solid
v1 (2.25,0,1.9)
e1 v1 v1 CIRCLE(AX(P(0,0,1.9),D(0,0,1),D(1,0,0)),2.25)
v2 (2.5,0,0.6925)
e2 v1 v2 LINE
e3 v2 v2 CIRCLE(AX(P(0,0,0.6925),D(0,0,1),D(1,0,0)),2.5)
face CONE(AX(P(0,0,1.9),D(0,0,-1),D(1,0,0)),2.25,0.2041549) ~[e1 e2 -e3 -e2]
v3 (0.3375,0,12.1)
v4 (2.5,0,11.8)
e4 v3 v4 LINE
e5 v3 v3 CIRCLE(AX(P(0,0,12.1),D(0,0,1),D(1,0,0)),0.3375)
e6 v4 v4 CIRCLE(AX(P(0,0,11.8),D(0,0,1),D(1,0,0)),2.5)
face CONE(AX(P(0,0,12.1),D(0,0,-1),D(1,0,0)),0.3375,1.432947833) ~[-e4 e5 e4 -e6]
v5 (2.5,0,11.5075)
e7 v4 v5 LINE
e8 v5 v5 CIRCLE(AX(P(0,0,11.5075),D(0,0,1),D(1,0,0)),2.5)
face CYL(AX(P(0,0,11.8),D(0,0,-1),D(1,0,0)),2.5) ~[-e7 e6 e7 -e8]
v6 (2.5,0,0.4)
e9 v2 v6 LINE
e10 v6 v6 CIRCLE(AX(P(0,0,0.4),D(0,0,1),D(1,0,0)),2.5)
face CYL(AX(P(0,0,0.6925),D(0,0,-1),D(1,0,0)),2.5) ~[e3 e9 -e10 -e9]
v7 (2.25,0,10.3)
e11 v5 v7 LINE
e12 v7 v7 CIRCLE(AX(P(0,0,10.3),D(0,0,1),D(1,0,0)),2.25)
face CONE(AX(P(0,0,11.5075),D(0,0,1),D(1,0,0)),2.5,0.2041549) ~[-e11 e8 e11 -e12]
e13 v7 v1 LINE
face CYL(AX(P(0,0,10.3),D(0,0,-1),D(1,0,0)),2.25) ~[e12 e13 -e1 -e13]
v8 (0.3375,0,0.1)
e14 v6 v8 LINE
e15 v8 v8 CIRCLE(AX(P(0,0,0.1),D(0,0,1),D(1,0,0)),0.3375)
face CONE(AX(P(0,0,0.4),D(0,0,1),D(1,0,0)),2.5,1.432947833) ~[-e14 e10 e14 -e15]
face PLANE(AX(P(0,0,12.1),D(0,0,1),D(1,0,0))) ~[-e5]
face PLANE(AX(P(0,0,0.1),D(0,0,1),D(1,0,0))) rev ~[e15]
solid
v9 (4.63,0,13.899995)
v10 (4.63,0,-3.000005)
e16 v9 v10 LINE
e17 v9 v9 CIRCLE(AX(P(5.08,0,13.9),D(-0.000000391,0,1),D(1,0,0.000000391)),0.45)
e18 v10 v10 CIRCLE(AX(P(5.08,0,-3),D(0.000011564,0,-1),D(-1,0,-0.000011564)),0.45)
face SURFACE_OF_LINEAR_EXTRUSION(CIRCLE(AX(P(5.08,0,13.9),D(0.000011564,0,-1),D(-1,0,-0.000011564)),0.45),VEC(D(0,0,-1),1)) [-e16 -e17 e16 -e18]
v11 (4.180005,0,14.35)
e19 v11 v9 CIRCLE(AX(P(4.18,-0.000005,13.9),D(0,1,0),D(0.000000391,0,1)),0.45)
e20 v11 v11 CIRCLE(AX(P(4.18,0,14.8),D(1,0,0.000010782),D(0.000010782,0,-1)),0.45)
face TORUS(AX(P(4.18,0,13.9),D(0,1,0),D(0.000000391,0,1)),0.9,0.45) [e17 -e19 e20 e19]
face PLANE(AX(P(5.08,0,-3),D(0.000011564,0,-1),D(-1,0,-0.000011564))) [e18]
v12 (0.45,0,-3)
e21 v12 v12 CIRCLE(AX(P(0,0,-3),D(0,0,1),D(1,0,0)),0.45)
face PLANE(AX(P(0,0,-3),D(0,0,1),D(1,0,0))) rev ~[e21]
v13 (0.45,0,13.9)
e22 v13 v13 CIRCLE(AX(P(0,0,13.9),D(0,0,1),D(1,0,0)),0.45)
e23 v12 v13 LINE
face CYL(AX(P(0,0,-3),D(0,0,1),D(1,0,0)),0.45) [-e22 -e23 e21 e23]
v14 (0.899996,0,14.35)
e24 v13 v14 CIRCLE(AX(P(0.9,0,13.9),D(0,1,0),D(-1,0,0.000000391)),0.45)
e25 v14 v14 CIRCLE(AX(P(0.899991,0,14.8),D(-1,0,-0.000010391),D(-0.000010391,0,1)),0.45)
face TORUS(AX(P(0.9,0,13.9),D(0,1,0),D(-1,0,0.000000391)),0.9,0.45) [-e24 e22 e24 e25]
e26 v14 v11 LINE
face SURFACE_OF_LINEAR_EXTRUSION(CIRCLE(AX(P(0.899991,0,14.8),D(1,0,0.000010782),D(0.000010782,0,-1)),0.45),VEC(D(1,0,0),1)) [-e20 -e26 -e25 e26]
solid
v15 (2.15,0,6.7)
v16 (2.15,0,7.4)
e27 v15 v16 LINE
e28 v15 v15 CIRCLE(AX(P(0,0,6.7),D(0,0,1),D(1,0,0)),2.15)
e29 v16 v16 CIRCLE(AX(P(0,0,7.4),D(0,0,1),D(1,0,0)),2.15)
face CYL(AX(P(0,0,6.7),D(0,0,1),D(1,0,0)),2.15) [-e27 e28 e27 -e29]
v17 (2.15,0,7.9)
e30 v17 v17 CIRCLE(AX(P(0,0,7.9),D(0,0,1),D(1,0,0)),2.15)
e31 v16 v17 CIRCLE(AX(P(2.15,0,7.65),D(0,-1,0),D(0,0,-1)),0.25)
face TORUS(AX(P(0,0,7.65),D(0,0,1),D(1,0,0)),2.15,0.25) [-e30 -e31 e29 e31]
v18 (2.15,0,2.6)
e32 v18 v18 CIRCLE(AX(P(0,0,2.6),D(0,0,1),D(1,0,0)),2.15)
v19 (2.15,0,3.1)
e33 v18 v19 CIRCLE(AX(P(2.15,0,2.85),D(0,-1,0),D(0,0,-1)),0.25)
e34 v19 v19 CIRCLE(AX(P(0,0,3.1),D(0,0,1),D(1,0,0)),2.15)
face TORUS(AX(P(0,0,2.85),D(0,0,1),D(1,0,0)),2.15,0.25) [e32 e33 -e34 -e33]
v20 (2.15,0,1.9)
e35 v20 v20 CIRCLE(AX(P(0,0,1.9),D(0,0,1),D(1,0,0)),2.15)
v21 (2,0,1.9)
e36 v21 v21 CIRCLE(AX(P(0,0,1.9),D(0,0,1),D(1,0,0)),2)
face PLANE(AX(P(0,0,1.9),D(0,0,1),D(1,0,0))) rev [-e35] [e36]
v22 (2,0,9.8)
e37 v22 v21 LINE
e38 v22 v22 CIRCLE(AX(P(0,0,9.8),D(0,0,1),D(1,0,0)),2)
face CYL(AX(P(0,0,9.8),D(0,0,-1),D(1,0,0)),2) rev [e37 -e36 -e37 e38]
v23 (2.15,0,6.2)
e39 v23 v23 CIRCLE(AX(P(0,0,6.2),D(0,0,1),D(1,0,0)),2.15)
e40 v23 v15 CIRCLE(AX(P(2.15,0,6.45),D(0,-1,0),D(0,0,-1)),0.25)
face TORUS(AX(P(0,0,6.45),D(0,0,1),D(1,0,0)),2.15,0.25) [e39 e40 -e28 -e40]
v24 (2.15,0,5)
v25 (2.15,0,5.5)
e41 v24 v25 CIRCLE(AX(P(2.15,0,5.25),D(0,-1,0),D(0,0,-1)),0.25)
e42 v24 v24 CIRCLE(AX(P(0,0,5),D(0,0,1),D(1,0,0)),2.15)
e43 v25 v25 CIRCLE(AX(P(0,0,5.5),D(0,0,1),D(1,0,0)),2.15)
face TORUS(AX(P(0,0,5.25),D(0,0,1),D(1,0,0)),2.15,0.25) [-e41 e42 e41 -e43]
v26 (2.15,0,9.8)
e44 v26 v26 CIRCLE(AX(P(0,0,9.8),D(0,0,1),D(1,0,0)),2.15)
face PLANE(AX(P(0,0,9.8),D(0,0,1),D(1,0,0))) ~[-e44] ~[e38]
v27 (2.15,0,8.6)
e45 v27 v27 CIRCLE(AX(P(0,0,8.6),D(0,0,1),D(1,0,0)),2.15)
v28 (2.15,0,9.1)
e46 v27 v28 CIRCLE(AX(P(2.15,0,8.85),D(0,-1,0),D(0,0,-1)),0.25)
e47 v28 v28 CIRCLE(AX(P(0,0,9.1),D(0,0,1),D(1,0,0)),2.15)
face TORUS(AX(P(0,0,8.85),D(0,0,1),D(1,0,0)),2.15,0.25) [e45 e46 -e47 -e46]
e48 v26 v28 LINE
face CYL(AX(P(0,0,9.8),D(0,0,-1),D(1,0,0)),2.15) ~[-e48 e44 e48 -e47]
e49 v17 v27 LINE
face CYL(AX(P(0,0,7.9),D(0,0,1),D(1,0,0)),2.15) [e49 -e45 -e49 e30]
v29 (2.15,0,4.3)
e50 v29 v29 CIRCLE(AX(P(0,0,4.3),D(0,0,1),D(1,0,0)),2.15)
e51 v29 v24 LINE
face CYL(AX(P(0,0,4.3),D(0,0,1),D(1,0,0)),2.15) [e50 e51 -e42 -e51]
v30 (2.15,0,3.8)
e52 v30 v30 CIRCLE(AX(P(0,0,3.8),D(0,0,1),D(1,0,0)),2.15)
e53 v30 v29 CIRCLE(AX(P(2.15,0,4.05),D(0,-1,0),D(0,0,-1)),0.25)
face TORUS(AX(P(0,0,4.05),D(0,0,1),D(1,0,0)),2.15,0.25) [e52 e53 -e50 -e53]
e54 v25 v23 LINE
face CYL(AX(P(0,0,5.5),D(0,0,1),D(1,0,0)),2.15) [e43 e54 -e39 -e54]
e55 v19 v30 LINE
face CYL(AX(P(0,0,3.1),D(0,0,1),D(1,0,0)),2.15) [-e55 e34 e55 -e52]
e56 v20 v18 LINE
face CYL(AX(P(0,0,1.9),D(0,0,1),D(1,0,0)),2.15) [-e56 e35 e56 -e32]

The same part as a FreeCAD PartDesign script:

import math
import FreeCAD as App
import Part
import Sketcher

V = App.Vector
Q = App.Units.Quantity


def add_polygon(sketch, points):
    """Adds a closed chain of lines whose ends are joined by coincident constraints."""
    first, n = sketch.GeometryCount, len(points)
    for a, b in zip(points, points[1:] + points[:1]):
        sketch.addGeometry(Part.LineSegment(App.Vector(*a, 0), App.Vector(*b, 0)), False)
    for i in range(n):
        sketch.addConstraint(Sketcher.Constraint("Coincident", first + i, 2, first + (i + 1) % n, 1))

doc = App.newDocument("Part")
body = doc.addObject("PartDesign::Body", "Body")

# Sketch on XY plane
sketch1 = body.newObject("Sketcher::SketchObject", "Sketch")
sketch1.AttachmentSupport = (doc.getObject("XY_Plane"), [""])
sketch1.MapMode = "FlatFace"
sketch1.AttachmentOffset = App.Placement(V(0, 0, -2), App.Rotation())
sketch1.addGeometry(Part.Circle(V(0, 0, 0), V(0, 0, 1), 0.45), False)
sketch1.addConstraint(Sketcher.Constraint("Coincident", 0, 3, -1, 1))
sketch1.addConstraint(Sketcher.Constraint("Diameter", 0, Q("0.9 mm")))

# Sketch on XZ plane
sketch2 = body.newObject("Sketcher::SketchObject", "Sketch001")
sketch2.AttachmentSupport = (doc.getObject("XZ_Plane"), [""])
sketch2.MapMode = "FlatFace"
sketch2.addGeometry(Part.LineSegment(V(0, -3, 0), V(0, 13.9, 0)), False)
sketch2.addGeometry(Part.ArcOfCircle(Part.Circle(V(0.9, 13.9, 0), V(0, 0, 1), 0.9), math.radians(90), math.radians(180)), False)
sketch2.addGeometry(Part.LineSegment(V(0.9, 14.8, 0), V(4.2, 14.8, 0)), False)
sketch2.addGeometry(Part.ArcOfCircle(Part.Circle(V(4.2, 13.9, 0), V(0, 0, 1), 0.9), math.radians(0), math.radians(90)), False)
sketch2.addGeometry(Part.LineSegment(V(5.1, 13.9, 0), V(5.1, -3, 0)), False)
sketch2.addConstraint(Sketcher.Constraint("Tangent", 0, 2, 1, 2))
sketch2.addConstraint(Sketcher.Constraint("Coincident", 1, 1, 2, 1))
sketch2.addConstraint(Sketcher.Constraint("Tangent", 2, 2, 3, 2))
sketch2.addConstraint(Sketcher.Constraint("Tangent", 3, 1, 4, 1))
sketch2.addConstraint(Sketcher.Constraint("Vertical", 0))
sketch2.addConstraint(Sketcher.Constraint("Horizontal", 2))
sketch2.addConstraint(Sketcher.Constraint("Vertical", 4))
sketch2.addConstraint(Sketcher.Constraint("Equal", 1, 3))
sketch2.addConstraint(Sketcher.Constraint("PointOnObject", 0, 1, -2))
sketch2.addConstraint(Sketcher.Constraint("Horizontal", 0, 1, 4, 2))
sketch2.addConstraint(Sketcher.Constraint("Radius", 1, Q("0.9 mm")))
sketch2.addConstraint(Sketcher.Constraint("DistanceY", 0, 1, 0, 2, Q("16.9 mm")))
sketch2.addConstraint(Sketcher.Constraint("DistanceY", 0, 1, -1, 1, Q("3 mm")))
sketch2.addConstraint(Sketcher.Constraint("DistanceX", -1, 1, 3, 3, Q("4.18 mm")))
sketch2.addConstraint(Sketcher.Constraint("DistanceX", 2, 1, 2, 2, Q("3.280009 mm")))
doc.recompute()

additivepipe = body.newObject("PartDesign::AdditivePipe", "AdditivePipe")
additivepipe.Profile = sketch1
additivepipe.Spine = (sketch2, ["Edge1", "Edge2", "Edge3", "Edge4", "Edge5"])
body2 = doc.addObject("PartDesign::Body", "Body001")

# Sketch on XZ plane
sketch3 = body2.newObject("Sketcher::SketchObject", "Sketch002")
sketch3.AttachmentSupport = (doc.getObject("XZ_Plane001"), [""])
sketch3.MapMode = "FlatFace"
add_polygon(sketch3, [(0, 12.1), (0, 0.1), (0.34, 0.1), (2.5, 0.4), (2.5, 0.69), (2.25, 1.9), (2.25, 10.3), (2.5, 11.51), (2.5, 11.8), (0.34, 12.1)])  # lines 0-9
sketch3.addConstraint(Sketcher.Constraint("Vertical", 0))
sketch3.addConstraint(Sketcher.Constraint("Horizontal", 1))
sketch3.addConstraint(Sketcher.Constraint("Vertical", 3))
sketch3.addConstraint(Sketcher.Constraint("Vertical", 5))
sketch3.addConstraint(Sketcher.Constraint("Vertical", 7))
sketch3.addConstraint(Sketcher.Constraint("Horizontal", 9))
sketch3.addConstraint(Sketcher.Constraint("PointOnObject", 0, 2, -2))
sketch3.addConstraint(Sketcher.Constraint("Vertical", 3, 2, 6, 2))
sketch3.addConstraint(Sketcher.Constraint("Vertical", 1, 2, 8, 2))
sketch3.addConstraint(Sketcher.Constraint("Equal", 3, 7))
sketch3.addConstraint(Sketcher.Constraint("Equal", 4, 6))
sketch3.addConstraint(Sketcher.Constraint("Equal", 2, 8))
sketch3.addConstraint(Sketcher.Constraint("DistanceY", 0, 2, 0, 1, Q("12 mm")))
sketch3.addConstraint(Sketcher.Constraint("DistanceY", 5, 1, 5, 2, Q("8.4 mm")))
sketch3.addConstraint(Sketcher.Constraint("DistanceY", -1, 1, 0, 2, Q("0.1 mm")))
sketch3.addConstraint(Sketcher.Constraint("DistanceX", -1, 1, 2, 2, Q("2.5 mm")))
sketch3.addConstraint(Sketcher.Constraint("DistanceY", -1, 1, 2, 2, Q("0.4 mm")))
sketch3.addConstraint(Sketcher.Constraint("DistanceX", -1, 1, 4, 2, Q("2.25 mm")))
sketch3.addConstraint(Sketcher.Constraint("DistanceX", 1, 1, 1, 2, Q("0.3375 mm")))
sketch3.addConstraint(Sketcher.Constraint("DistanceY", 3, 1, 3, 2, Q("0.2925 mm")))
revolution = body2.newObject("PartDesign::Revolution", "Revolution")
revolution.Profile = sketch3
revolution.ReferenceAxis = (sketch3, ["V_Axis"])
revolution.Angle = 360
body3 = doc.addObject("PartDesign::Body", "Body002")

# Sketch on XZ plane
sketch4 = body3.newObject("Sketcher::SketchObject", "Sketch003")
sketch4.AttachmentSupport = (doc.getObject("XZ_Plane002"), [""])
sketch4.MapMode = "FlatFace"
sketch4.addGeometry(Part.LineSegment(V(2, 9.8, 0), V(2, 1.9, 0)), False)
sketch4.addGeometry(Part.LineSegment(V(2, 1.9, 0), V(2.15, 1.9, 0)), False)
sketch4.addGeometry(Part.LineSegment(V(2.15, 1.9, 0), V(2.15, 2.6, 0)), False)
sketch4.addGeometry(Part.ArcOfCircle(Part.Circle(V(2.15, 2.85, 0), V(0, 0, 1), 0.25), math.radians(-90), math.radians(90)), False)
sketch4.addGeometry(Part.LineSegment(V(2.15, 3.1, 0), V(2.15, 3.8, 0)), False)
sketch4.addGeometry(Part.ArcOfCircle(Part.Circle(V(2.15, 4.05, 0), V(0, 0, 1), 0.25), math.radians(-90), math.radians(90)), False)
sketch4.addGeometry(Part.LineSegment(V(2.15, 4.3, 0), V(2.15, 5, 0)), False)
sketch4.addGeometry(Part.ArcOfCircle(Part.Circle(V(2.15, 5.25, 0), V(0, 0, 1), 0.25), math.radians(-90), math.radians(90)), False)
sketch4.addGeometry(Part.LineSegment(V(2.15, 5.5, 0), V(2.15, 6.2, 0)), False)
sketch4.addGeometry(Part.ArcOfCircle(Part.Circle(V(2.15, 6.45, 0), V(0, 0, 1), 0.25), math.radians(-90), math.radians(90)), False)
sketch4.addGeometry(Part.LineSegment(V(2.15, 6.7, 0), V(2.15, 7.4, 0)), False)
sketch4.addGeometry(Part.ArcOfCircle(Part.Circle(V(2.15, 7.65, 0), V(0, 0, 1), 0.25), math.radians(-90), math.radians(90)), False)
sketch4.addGeometry(Part.LineSegment(V(2.15, 7.9, 0), V(2.15, 8.6, 0)), False)
sketch4.addGeometry(Part.ArcOfCircle(Part.Circle(V(2.15, 8.85, 0), V(0, 0, 1), 0.25), math.radians(-90), math.radians(90)), False)
sketch4.addGeometry(Part.LineSegment(V(2.15, 9.1, 0), V(2.15, 9.8, 0)), False)
sketch4.addGeometry(Part.LineSegment(V(2.15, 9.8, 0), V(2, 9.8, 0)), False)
sketch4.addConstraint(Sketcher.Constraint("Coincident", 0, 2, 1, 1))
sketch4.addConstraint(Sketcher.Constraint("Coincident", 1, 2, 2, 1))
sketch4.addConstraint(Sketcher.Constraint("Coincident", 2, 2, 3, 1))
sketch4.addConstraint(Sketcher.Constraint("Coincident", 3, 2, 4, 1))
sketch4.addConstraint(Sketcher.Constraint("Coincident", 4, 2, 5, 1))
sketch4.addConstraint(Sketcher.Constraint("Coincident", 5, 2, 6, 1))
sketch4.addConstraint(Sketcher.Constraint("Coincident", 6, 2, 7, 1))
sketch4.addConstraint(Sketcher.Constraint("Coincident", 7, 2, 8, 1))
sketch4.addConstraint(Sketcher.Constraint("Coincident", 8, 2, 9, 1))
sketch4.addConstraint(Sketcher.Constraint("Coincident", 9, 2, 10, 1))
sketch4.addConstraint(Sketcher.Constraint("Coincident", 10, 2, 11, 1))
sketch4.addConstraint(Sketcher.Constraint("Coincident", 11, 2, 12, 1))
sketch4.addConstraint(Sketcher.Constraint("Coincident", 12, 2, 13, 1))
sketch4.addConstraint(Sketcher.Constraint("Coincident", 13, 2, 14, 1))
sketch4.addConstraint(Sketcher.Constraint("Coincident", 14, 2, 15, 1))
sketch4.addConstraint(Sketcher.Constraint("Coincident", 15, 2, 0, 1))
sketch4.addConstraint(Sketcher.Constraint("Vertical", 0))
sketch4.addConstraint(Sketcher.Constraint("Horizontal", 1))
sketch4.addConstraint(Sketcher.Constraint("Vertical", 2))
sketch4.addConstraint(Sketcher.Constraint("Vertical", 4))
sketch4.addConstraint(Sketcher.Constraint("Vertical", 6))
sketch4.addConstraint(Sketcher.Constraint("Vertical", 8))
sketch4.addConstraint(Sketcher.Constraint("Vertical", 10))
sketch4.addConstraint(Sketcher.Constraint("Vertical", 12))
sketch4.addConstraint(Sketcher.Constraint("Vertical", 14))
sketch4.addConstraint(Sketcher.Constraint("Horizontal", 15))
sketch4.addConstraint(Sketcher.Constraint("Equal", 3, 5))
sketch4.addConstraint(Sketcher.Constraint("Equal", 5, 7))
sketch4.addConstraint(Sketcher.Constraint("Equal", 7, 9))
sketch4.addConstraint(Sketcher.Constraint("Equal", 9, 11))
sketch4.addConstraint(Sketcher.Constraint("Equal", 11, 13))
sketch4.addConstraint(Sketcher.Constraint("Vertical", 3, 3, 5, 3))
sketch4.addConstraint(Sketcher.Constraint("Vertical", 5, 3, 7, 3))
sketch4.addConstraint(Sketcher.Constraint("Vertical", 7, 3, 9, 3))
sketch4.addConstraint(Sketcher.Constraint("Vertical", 9, 3, 11, 3))
sketch4.addConstraint(Sketcher.Constraint("Vertical", 11, 3, 13, 3))
sketch4.addConstraint(Sketcher.Constraint("Vertical", 13, 3, 1, 2))
sketch4.addConstraint(Sketcher.Constraint("Vertical", 2, 2, 3, 2))
sketch4.addConstraint(Sketcher.Constraint("Vertical", 4, 2, 5, 2))
sketch4.addConstraint(Sketcher.Constraint("Vertical", 6, 2, 7, 2))
sketch4.addConstraint(Sketcher.Constraint("Vertical", 8, 2, 9, 2))
sketch4.addConstraint(Sketcher.Constraint("Vertical", 10, 2, 11, 2))
sketch4.addConstraint(Sketcher.Constraint("Vertical", 12, 2, 13, 2))
sketch4.addConstraint(Sketcher.Constraint("Equal", 2, 4))
sketch4.addConstraint(Sketcher.Constraint("Equal", 4, 6))
sketch4.addConstraint(Sketcher.Constraint("Equal", 6, 8))
sketch4.addConstraint(Sketcher.Constraint("Equal", 8, 10))
sketch4.addConstraint(Sketcher.Constraint("Equal", 10, 12))
sketch4.addConstraint(Sketcher.Constraint("Equal", 12, 14))
sketch4.addConstraint(Sketcher.Constraint("Radius", 3, Q("0.25 mm")))
sketch4.addConstraint(Sketcher.Constraint("DistanceY", 0, 2, 0, 1, Q("7.9 mm")))
sketch4.addConstraint(Sketcher.Constraint("DistanceX", -1, 1, 0, 2, Q("2 mm")))
sketch4.addConstraint(Sketcher.Constraint("DistanceY", -1, 1, 6, 2, Q("5 mm")))
sketch4.addConstraint(Sketcher.Constraint("DistanceX", 1, 1, 1, 2, Q("0.15 mm")))
revolution2 = body3.newObject("PartDesign::Revolution", "Revolution001")
revolution2.Profile = sketch4
revolution2.ReferenceAxis = (sketch4, ["V_Axis"])
revolution2.Angle = 360

doc.recompute()
